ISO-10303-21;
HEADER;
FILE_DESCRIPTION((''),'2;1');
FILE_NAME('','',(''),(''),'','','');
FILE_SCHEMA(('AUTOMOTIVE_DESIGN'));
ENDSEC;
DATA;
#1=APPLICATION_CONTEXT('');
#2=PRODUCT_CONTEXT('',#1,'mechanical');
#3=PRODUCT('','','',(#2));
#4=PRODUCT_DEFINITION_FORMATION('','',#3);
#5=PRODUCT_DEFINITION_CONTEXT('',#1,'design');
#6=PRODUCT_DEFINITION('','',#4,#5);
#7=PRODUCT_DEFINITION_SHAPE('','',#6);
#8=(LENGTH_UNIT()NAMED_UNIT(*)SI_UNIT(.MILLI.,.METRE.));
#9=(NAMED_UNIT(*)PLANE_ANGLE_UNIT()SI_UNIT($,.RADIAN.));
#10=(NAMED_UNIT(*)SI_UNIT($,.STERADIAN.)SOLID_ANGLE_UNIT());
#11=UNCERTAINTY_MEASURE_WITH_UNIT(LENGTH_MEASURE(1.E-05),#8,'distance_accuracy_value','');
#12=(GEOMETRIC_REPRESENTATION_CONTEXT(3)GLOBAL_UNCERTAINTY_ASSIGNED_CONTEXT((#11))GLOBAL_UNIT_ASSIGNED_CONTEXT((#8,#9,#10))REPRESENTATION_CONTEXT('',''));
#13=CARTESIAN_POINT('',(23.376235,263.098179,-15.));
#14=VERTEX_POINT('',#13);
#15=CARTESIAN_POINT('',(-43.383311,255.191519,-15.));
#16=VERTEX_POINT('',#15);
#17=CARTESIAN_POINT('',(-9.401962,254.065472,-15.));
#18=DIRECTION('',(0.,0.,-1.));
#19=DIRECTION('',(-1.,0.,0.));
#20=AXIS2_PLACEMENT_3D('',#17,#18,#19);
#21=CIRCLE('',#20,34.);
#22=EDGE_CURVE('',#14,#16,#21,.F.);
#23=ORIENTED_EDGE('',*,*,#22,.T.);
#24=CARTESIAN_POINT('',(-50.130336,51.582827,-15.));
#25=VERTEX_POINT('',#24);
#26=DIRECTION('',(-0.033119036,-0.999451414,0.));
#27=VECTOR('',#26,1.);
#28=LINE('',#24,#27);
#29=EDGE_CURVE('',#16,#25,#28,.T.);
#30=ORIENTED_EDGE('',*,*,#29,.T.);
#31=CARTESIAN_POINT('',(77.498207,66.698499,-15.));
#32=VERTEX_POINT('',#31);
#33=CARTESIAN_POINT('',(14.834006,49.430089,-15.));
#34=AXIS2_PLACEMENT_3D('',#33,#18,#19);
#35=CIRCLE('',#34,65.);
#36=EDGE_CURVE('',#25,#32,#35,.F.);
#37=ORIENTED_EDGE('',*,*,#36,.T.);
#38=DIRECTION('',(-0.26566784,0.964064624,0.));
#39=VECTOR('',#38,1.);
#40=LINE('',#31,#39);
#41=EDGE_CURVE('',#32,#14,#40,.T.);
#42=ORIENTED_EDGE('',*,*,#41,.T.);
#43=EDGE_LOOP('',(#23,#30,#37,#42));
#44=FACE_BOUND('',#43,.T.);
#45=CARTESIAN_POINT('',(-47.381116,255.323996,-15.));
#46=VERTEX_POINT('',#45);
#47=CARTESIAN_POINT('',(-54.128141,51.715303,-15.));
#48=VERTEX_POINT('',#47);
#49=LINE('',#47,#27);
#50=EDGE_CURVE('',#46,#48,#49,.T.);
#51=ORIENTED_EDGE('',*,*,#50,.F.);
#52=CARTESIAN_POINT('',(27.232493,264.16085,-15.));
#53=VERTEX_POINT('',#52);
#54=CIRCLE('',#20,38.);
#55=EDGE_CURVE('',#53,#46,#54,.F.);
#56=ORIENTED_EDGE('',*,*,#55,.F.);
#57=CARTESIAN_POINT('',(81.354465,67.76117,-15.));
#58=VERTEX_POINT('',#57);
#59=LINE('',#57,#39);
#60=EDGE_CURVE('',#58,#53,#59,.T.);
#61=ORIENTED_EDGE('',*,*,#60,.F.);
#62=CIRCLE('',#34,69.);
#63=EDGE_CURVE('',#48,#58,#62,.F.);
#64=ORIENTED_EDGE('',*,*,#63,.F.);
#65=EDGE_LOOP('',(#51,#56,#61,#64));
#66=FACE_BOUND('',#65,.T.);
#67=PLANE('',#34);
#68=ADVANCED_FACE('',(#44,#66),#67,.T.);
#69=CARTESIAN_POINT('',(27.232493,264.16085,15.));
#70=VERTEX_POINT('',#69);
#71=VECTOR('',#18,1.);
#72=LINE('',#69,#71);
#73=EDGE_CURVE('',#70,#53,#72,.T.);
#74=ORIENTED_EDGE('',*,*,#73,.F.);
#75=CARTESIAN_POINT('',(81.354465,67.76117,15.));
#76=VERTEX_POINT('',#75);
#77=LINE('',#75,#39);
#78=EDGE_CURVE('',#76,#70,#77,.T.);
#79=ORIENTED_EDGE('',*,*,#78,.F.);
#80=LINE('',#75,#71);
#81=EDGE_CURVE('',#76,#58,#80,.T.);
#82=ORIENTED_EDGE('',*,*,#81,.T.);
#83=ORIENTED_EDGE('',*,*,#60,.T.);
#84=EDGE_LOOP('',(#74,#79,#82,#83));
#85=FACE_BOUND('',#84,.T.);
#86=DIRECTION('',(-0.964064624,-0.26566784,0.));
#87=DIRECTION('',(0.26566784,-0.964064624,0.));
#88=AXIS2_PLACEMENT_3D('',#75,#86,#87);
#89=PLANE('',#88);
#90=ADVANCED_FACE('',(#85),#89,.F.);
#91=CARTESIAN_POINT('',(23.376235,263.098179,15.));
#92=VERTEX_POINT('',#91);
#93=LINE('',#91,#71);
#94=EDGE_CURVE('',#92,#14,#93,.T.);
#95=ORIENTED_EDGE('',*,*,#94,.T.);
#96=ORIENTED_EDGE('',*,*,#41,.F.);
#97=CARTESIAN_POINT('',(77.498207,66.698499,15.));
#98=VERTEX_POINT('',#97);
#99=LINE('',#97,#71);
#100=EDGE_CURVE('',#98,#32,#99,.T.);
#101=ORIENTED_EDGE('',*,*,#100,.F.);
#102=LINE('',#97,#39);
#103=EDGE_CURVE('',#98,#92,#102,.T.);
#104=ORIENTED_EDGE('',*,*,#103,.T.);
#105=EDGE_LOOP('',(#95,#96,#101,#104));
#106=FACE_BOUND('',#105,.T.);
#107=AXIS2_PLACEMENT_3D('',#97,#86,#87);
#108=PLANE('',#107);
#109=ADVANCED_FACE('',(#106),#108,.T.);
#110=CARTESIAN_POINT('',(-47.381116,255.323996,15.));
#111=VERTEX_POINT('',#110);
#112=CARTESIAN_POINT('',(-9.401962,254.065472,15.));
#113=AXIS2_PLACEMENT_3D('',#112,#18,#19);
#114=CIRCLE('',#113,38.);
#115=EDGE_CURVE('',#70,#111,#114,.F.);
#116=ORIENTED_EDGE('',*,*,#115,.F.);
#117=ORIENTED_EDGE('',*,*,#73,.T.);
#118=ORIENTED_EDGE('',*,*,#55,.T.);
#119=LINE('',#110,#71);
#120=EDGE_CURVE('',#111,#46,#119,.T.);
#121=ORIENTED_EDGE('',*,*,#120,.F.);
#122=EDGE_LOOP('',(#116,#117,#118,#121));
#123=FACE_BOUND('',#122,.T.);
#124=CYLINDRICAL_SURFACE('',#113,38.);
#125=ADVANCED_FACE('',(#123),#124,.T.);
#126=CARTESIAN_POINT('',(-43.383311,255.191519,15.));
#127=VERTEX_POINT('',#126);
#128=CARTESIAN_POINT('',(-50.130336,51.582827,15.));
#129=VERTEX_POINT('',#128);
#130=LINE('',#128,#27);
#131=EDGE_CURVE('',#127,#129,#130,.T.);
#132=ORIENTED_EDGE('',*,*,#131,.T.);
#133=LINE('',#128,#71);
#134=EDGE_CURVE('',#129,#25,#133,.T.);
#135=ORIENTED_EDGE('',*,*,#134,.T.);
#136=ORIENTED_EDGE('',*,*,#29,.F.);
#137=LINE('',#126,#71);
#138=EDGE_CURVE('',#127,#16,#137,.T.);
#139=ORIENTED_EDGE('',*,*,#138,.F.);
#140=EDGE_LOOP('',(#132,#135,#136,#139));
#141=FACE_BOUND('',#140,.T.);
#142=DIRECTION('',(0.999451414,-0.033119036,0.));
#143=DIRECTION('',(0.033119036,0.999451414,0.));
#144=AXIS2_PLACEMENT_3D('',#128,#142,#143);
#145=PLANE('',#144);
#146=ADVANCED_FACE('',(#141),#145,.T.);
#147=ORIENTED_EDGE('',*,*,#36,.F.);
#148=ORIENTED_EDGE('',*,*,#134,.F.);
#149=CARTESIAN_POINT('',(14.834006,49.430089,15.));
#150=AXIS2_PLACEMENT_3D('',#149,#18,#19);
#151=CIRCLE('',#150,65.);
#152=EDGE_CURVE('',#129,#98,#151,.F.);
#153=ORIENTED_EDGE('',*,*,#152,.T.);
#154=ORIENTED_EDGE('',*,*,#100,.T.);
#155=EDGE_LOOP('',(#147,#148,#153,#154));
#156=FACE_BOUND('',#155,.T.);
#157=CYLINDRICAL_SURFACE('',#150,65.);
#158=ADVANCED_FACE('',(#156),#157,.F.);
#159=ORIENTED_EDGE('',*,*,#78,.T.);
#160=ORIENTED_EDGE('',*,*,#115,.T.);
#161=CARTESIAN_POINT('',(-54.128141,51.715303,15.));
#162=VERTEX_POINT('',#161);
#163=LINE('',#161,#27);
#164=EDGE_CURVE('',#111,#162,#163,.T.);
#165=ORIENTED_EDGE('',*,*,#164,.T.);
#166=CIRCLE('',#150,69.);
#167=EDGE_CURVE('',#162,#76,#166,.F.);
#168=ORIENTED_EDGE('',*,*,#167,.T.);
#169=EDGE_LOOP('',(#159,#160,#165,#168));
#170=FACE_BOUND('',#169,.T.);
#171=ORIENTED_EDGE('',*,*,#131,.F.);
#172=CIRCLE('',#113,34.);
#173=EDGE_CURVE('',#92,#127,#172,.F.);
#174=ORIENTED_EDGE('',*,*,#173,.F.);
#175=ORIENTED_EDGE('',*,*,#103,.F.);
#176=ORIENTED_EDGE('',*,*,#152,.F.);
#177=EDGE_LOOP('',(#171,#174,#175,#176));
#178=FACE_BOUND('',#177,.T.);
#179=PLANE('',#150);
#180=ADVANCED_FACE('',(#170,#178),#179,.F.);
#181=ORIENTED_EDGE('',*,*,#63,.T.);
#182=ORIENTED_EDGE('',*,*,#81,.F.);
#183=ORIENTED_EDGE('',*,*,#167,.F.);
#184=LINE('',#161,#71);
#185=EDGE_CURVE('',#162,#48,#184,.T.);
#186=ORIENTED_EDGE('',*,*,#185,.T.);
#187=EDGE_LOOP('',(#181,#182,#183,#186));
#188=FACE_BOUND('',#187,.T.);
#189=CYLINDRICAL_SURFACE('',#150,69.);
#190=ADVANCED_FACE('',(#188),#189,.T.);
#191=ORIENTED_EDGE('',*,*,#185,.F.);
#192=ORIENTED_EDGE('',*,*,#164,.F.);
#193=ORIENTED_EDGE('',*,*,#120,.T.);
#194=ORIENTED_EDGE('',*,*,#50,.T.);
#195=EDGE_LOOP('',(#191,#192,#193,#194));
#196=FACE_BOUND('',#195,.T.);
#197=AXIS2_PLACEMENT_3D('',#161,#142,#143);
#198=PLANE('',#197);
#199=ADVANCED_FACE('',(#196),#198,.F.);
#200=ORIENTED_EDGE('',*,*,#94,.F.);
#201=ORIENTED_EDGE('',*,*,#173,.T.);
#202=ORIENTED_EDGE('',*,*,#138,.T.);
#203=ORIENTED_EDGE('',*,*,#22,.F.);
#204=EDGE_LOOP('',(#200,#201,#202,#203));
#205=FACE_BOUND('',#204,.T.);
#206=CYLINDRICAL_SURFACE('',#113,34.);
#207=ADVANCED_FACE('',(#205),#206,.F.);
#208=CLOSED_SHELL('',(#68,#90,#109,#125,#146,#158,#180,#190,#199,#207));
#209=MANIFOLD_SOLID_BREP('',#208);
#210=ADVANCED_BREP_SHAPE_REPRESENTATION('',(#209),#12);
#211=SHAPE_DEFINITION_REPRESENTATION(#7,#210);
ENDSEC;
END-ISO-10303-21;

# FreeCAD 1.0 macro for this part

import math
import FreeCAD as App
import Part
import Sketcher

V = App.Vector
Q = App.Units.Quantity

doc = App.newDocument("Part")
body = doc.addObject("PartDesign::Body", "Body")

sketch1 = body.newObject("Sketcher::SketchObject", "Sketch")
sketch1.AttachmentSupport = (doc.getObject("XY_Plane"), [""])
sketch1.MapMode = "FlatFace"
sketch1.addGeometry(Part.LineSegment(V(81, 68, 0), V(27, 264, 0)), False)
sketch1.addGeometry(Part.ArcOfCircle(Part.Circle(V(-9, 254, 0), V(0, 0, 1), 38), math.radians(15), math.radians(178)), False)
sketch1.addGeometry(Part.LineSegment(V(-47, 255, 0), V(-54, 52, 0)), False)
sketch1.addGeometry(Part.ArcOfCircle(Part.Circle(V(15, 49, 0), V(0, 0, 1), 69), math.radians(178), math.radians(375)), False)
sketch1.addGeometry(Part.LineSegment(V(23, 263, 0), V(77, 67, 0)), False)
sketch1.addGeometry(Part.ArcOfCircle(Part.Circle(V(15, 49, 0), V(0, 0, 1), 65), math.radians(178), math.radians(375)), False)
sketch1.addGeometry(Part.LineSegment(V(-50, 52, 0), V(-43, 255, 0)), False)
sketch1.addGeometry(Part.ArcOfCircle(Part.Circle(V(-9, 254, 0), V(0, 0, 1), 34), math.radians(15), math.radians(178)), False)
sketch1.addConstraint(Sketcher.Constraint("Tangent", 0, 2, 1, 1))
sketch1.addConstraint(Sketcher.Constraint("Tangent", 1, 2, 2, 1))
sketch1.addConstraint(Sketcher.Constraint("Tangent", 2, 2, 3, 1))
sketch1.addConstraint(Sketcher.Constraint("Tangent", 3, 2, 0, 1))
sketch1.addConstraint(Sketcher.Constraint("Tangent", 4, 2, 5, 2))
sketch1.addConstraint(Sketcher.Constraint("Tangent", 5, 1, 6, 1))
sketch1.addConstraint(Sketcher.Constraint("Tangent", 6, 2, 7, 2))
sketch1.addConstraint(Sketcher.Constraint("Tangent", 7, 1, 4, 1))
sketch1.addConstraint(Sketcher.Constraint("Coincident", 5, 3, 3, 3))
sketch1.addConstraint(Sketcher.Constraint("Coincident", 7, 3, 1, 3))
sketch1.addConstraint(Sketcher.Constraint("Parallel", 0, 4))
sketch1.addConstraint(Sketcher.Constraint("Radius", 1, Q("38 mm")))
sketch1.addConstraint(Sketcher.Constraint("Radius", 3, Q("69 mm")))
sketch1.addConstraint(Sketcher.Constraint("Radius", 5, Q("65 mm")))
sketch1.addConstraint(Sketcher.Constraint("DistanceY", -1, 1, 4, 2, Q("66.698499 mm")))
sketch1.addConstraint(Sketcher.Constraint("DistanceY", 3, 2, 1, 3, Q("186.304302 mm")))
sketch1.addConstraint(Sketcher.Constraint("DistanceX", 3, 3, 4, 2, Q("62.664201 mm")))
sketch1.addConstraint(Sketcher.Constraint("DistanceX", 2, 2, -1, 1, Q("54.128141 mm")))
pad1 = body.newObject("PartDesign::Pad", "Pad")
pad1.Profile = sketch1
pad1.Length = 30
pad1.Midplane = True

doc.recompute()
